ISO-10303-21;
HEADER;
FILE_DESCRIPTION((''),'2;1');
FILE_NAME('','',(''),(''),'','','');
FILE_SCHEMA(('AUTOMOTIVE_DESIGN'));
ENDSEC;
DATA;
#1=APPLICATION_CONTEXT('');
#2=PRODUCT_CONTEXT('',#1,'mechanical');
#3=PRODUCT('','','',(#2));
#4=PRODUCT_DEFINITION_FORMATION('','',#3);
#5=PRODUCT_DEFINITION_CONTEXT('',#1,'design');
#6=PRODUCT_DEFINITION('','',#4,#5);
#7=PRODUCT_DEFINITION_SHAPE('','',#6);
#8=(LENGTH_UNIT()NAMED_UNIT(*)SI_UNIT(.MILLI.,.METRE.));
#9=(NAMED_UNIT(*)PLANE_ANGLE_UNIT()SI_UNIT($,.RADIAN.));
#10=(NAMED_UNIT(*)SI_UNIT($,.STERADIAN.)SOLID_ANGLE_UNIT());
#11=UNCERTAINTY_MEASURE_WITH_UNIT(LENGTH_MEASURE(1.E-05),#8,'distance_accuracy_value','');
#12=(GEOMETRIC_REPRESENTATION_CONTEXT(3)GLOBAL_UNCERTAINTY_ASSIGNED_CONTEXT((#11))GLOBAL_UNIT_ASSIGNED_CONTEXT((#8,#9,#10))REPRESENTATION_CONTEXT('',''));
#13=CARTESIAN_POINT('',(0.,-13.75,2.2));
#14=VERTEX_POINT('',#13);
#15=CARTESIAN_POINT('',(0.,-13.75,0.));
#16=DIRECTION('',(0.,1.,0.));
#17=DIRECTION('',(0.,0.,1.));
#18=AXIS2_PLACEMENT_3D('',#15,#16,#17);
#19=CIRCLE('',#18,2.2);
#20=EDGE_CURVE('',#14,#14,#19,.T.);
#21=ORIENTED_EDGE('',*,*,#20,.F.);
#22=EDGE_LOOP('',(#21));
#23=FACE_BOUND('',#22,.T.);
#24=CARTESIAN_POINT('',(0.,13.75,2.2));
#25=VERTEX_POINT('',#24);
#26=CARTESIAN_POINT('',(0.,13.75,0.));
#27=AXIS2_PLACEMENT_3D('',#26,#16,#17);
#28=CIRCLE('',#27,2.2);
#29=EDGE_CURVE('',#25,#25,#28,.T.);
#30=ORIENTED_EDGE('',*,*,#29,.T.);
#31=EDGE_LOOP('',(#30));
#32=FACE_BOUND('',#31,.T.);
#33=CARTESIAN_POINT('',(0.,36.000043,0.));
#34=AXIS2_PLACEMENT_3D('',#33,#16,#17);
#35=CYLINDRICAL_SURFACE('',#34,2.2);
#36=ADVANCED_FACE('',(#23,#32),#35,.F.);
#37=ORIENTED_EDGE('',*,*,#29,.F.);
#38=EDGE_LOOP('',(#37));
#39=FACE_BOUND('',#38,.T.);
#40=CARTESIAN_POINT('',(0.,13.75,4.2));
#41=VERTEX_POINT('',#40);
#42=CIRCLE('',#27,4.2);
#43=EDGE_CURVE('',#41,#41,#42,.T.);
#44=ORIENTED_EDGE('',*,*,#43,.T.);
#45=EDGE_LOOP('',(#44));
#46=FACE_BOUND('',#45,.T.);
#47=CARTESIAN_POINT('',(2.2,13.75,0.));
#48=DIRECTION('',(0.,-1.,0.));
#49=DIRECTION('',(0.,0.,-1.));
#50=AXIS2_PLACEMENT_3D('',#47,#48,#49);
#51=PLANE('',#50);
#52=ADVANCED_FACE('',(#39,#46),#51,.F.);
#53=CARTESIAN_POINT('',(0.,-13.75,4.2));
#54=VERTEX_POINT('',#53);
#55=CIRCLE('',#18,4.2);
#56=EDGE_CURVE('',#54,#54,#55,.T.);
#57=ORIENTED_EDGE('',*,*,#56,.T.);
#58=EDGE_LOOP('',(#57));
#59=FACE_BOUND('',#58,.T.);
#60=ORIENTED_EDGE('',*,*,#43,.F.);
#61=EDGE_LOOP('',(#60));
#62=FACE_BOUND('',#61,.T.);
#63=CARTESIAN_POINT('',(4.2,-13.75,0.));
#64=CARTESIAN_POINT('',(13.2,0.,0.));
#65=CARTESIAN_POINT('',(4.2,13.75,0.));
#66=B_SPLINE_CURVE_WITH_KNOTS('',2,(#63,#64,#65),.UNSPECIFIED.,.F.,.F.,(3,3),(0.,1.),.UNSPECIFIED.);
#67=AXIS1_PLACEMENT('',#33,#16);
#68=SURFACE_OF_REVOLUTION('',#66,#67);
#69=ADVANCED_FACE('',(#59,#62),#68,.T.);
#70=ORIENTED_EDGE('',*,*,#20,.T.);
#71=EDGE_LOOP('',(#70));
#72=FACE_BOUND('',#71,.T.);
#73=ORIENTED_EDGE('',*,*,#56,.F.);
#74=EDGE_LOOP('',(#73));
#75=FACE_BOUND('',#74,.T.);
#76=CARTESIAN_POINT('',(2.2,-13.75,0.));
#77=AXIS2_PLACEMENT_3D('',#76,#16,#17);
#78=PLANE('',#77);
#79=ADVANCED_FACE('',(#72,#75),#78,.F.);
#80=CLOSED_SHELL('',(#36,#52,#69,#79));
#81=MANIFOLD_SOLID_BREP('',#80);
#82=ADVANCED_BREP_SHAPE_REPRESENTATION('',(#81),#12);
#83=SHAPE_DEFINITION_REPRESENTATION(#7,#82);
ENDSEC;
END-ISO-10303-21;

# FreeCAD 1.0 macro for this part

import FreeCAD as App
import Part
import Sketcher

V = App.Vector

doc = App.newDocument("Part")
body = doc.addObject("PartDesign::Body", "Body")

# Sketch on XY plane
sketch1 = body.newObject("Sketcher::SketchObject", "Sketch")
sketch1.AttachmentSupport = (doc.getObject("XY_Plane"), [""])
sketch1.MapMode = "FlatFace"
sketch1.addGeometry(Part.LineSegment(V(4.2, 13.75, 0), V(2.2, 13.75, 0)), False)
sketch1.addGeometry(Part.LineSegment(V(2.2, 13.75, 0), V(2.2, -13.75, 0)), False)
sketch1.addGeometry(Part.LineSegment(V(2.2, -13.75, 0), V(4.2, -13.75, 0)), False)
sketch1.addGeometry(Part.BSplineCurve([V(4.2, 13.75, 0), V(13.2, 0, 0), V(4.2, -13.75, 0)], [3, 3], [0, 1], False, 2, [1, 1, 1], False), False)
sketch1.addConstraint(Sketcher.Constraint("Block", 3))
sketch1.addConstraint(Sketcher.Constraint("Coincident", 0, 2, 1, 1))
sketch1.addConstraint(Sketcher.Constraint("Coincident", 1, 2, 2, 1))
sketch1.addConstraint(Sketcher.Constraint("Coincident", 2, 2, 3, 2))
sketch1.addConstraint(Sketcher.Constraint("Coincident", 3, 1, 0, 1))
sketch1.addConstraint(Sketcher.Constraint("Horizontal", 0))
sketch1.addConstraint(Sketcher.Constraint("Vertical", 1))
sketch1.addConstraint(Sketcher.Constraint("Horizontal", 2))
sketch1.addConstraint(Sketcher.Constraint("DistanceX", 0, 2, 0, 1, 2.0))
revolution = body.newObject("PartDesign::Revolution", "Revolution")
revolution.Profile = sketch1
revolution.ReferenceAxis = (sketch1, ["V_Axis"])
revolution.Angle = 360

doc.recompute()
